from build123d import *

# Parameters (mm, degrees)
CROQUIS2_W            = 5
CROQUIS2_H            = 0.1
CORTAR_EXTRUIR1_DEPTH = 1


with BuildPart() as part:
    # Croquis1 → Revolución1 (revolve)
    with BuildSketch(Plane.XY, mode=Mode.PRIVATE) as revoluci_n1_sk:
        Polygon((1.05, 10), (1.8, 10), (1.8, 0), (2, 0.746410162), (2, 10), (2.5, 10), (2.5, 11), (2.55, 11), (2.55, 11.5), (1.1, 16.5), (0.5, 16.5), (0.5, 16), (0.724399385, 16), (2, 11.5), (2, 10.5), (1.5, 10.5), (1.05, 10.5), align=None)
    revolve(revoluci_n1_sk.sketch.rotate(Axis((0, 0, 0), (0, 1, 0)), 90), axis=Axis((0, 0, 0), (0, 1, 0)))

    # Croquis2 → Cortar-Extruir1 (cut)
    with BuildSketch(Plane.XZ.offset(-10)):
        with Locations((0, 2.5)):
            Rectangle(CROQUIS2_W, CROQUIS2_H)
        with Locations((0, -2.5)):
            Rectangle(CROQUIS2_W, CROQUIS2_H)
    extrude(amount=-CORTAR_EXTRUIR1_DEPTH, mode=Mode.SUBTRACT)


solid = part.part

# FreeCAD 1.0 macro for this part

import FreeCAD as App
import Part
import Sketcher
from FreeCAD import Vector
Q = App.Units.Quantity


def add_polygon(sketch, points):
    """Adds a closed chain of lines whose ends are joined by coincident constraints."""
    first, n = sketch.GeometryCount, len(points)
    for a, b in zip(points, points[1:] + points[:1]):
        sketch.addGeometry(Part.LineSegment(App.Vector(*a, 0), App.Vector(*b, 0)), False)
    for i in range(n):
        sketch.addConstraint(Sketcher.Constraint("Coincident", first + i, 2, first + (i + 1) % n, 1))

doc = App.newDocument("Part")
body = doc.addObject("PartDesign::Body", "Body")

# Sketch on XY plane
sketch1 = doc.addObject("Sketcher::SketchObject", "Sketch")
body.addObject(sketch1)
sketch1.AttachmentSupport = (doc.XY_Plane, [""])
sketch1.MapMode = "FlatFace"
add_polygon(sketch1, [(1.05, 10), (1.8, 10), (1.8, 0), (2, 0.746), (2, 10), (2.5, 10), (2.5, 11), (2.55, 11), (2.55, 11.5), (1.1, 16.5), (0.5, 16.5), (0.5, 16), (0.724, 16), (2, 11.5), (2, 10.5), (1.05, 10.5)])  # lines 0-15
sketch1.addConstraint([
    Sketcher.Constraint("Horizontal", 0),
    Sketcher.Constraint("Vertical", 1),
    Sketcher.Constraint("Vertical", 3),
    Sketcher.Constraint("Horizontal", 4),
    Sketcher.Constraint("Vertical", 5),
    Sketcher.Constraint("Horizontal", 6),
    Sketcher.Constraint("Vertical", 7),
    Sketcher.Constraint("Horizontal", 9),
    Sketcher.Constraint("Vertical", 10),
    Sketcher.Constraint("Horizontal", 11),
    Sketcher.Constraint("Vertical", 13),
    Sketcher.Constraint("Horizontal", 14),
    Sketcher.Constraint("Vertical", 15),
    Sketcher.Constraint("PointOnObject", 1, 2, -1),
    Sketcher.Constraint("Horizontal", 0, 2, 3, 2),
    Sketcher.Constraint("Horizontal", 7, 2, 12, 2),
    Sketcher.Constraint("Vertical", 3, 2, 12, 2),
    Sketcher.Constraint("Equal", 4, 7),
    Sketcher.Constraint("Equal", 7, 10),
    Sketcher.Constraint("Equal", 5, 13),
    Sketcher.Constraint("DistanceY", 1, 2, 1, 1, Q("10 mm")),
    Sketcher.Constraint("DistanceY", 5, 1, 5, 2, Q("1 mm")),
    Sketcher.Constraint("Angle", 2, Q("75 deg")),
    Sketcher.Constraint("DistanceX", 4, 1, 4, 2, Q("0.5 mm")),
    Sketcher.Constraint("DistanceX", 9, 2, 9, 1, Q("0.6 mm")),
    Sketcher.Constraint("DistanceX", -1, 1, 2, 2, Q("2 mm")),
    Sketcher.Constraint("DistanceY", -1, 1, 10, 2, Q("16 mm")),
    Sketcher.Constraint("DistanceX", 9, 2, 5, 2, Q("2 mm")),
    Sketcher.Constraint("DistanceX", 0, 1, 0, 2, Q("0.75 mm")),
    Sketcher.Constraint("DistanceX", 6, 1, 6, 2, Q("0.05 mm")),
    Sketcher.Constraint("DistanceX", 14, 2, 14, 1, Q("0.95 mm")),
    Sketcher.Constraint("DistanceX", 11, 1, 11, 2, Q("0.224399 mm")),
])
revolution = doc.addObject("PartDesign::Revolution", "Revolution")
body.addObject(revolution)
revolution.Profile = sketch1
revolution.ReferenceAxis = (sketch1, ["V_Axis"])
revolution.Angle = 360

# Sketch on XZ plane
sketch2 = doc.addObject("Sketcher::SketchObject", "Sketch001")
body.addObject(sketch2)
sketch2.AttachmentSupport = (doc.XZ_Plane, [""])
sketch2.MapMode = "FlatFace"
sketch2.AttachmentOffset = App.Placement(Vector(0, 0, -10), App.Rotation())
add_polygon(sketch2, [(-2.5, 2.55), (-2.5, 2.45), (2.5, 2.45), (2.5, 2.55)])  # lines 0-3
add_polygon(sketch2, [(-2.5, -2.45), (-2.5, -2.55), (2.5, -2.55), (2.5, -2.45)])  # lines 4-7
sketch2.addConstraint([
    Sketcher.Constraint("Vertical", 0),
    Sketcher.Constraint("Horizontal", 1),
    Sketcher.Constraint("Vertical", 2),
    Sketcher.Constraint("Horizontal", 3),
    Sketcher.Constraint("Vertical", 4),
    Sketcher.Constraint("Horizontal", 5),
    Sketcher.Constraint("Vertical", 6),
    Sketcher.Constraint("Horizontal", 7),
    Sketcher.Constraint("Symmetric", 2, 2, 4, 2, -1, 1),
    Sketcher.Constraint("Symmetric", 0, 2, 6, 2, -1, 1),
    Sketcher.Constraint("Vertical", 3, 2, 4, 2),
    Sketcher.Constraint("DistanceX", 1, 1, 1, 2, Q("5 mm")),
    Sketcher.Constraint("DistanceY", 0, 2, 0, 1, Q("0.1 mm")),
    Sketcher.Constraint("DistanceY", 4, 2, 0, 2, Q("5 mm")),
])
pocket1 = doc.addObject("PartDesign::Pocket", "Pocket")
body.addObject(pocket1)
pocket1.Profile = sketch2
pocket1.Length = 1

doc.recompute()
